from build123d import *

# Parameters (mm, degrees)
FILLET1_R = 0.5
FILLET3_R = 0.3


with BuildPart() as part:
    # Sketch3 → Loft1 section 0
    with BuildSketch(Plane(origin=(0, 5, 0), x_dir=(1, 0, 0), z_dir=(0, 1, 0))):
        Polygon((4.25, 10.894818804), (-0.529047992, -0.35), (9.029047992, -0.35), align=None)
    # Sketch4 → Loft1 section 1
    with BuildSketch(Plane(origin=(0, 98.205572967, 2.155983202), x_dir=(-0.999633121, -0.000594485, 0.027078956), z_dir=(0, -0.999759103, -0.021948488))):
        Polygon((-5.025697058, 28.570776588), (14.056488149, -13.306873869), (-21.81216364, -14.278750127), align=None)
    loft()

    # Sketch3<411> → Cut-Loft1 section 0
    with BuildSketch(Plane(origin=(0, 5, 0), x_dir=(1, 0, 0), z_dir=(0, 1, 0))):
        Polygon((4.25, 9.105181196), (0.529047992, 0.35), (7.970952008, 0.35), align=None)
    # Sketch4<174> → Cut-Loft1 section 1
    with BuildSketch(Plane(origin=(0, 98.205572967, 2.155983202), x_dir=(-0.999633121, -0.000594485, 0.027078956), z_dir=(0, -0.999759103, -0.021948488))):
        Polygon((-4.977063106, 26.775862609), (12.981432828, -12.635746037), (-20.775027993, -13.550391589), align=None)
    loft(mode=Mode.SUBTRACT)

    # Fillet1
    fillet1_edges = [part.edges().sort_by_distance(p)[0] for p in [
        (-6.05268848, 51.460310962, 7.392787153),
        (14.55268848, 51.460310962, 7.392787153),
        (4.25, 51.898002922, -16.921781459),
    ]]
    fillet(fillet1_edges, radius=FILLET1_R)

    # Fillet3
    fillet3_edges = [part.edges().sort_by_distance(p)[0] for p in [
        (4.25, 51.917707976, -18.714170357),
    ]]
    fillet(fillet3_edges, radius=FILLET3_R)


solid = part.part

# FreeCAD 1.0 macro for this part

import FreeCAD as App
import Part
import Sketcher
from FreeCAD import Vector
Q = App.Units.Quantity


def edges_at(feature, points):
    """Names of the edges that pass closest to the given points."""
    edges = feature.Shape.Edges
    near = lambda p: min(range(len(edges)), key=lambda i: edges[i].distToShape(Part.Vertex(*p))[0])
    return sorted({f"Edge{near(p) + 1}" for p in points})

doc = App.newDocument("Part")
body = doc.addObject("PartDesign::Body", "Body")

# Sketch on XZ plane
sketch1 = body.newObject("Sketcher::SketchObject", "Sketch")
sketch1.AttachmentSupport = (doc.getObject("XZ_Plane"), [""])
sketch1.MapMode = "FlatFace"
sketch1.AttachmentOffset = App.Placement(Vector(0, 0, -5), App.Rotation())
sketch1.addGeometry([
    Part.LineSegment(Vector(4, -11, 0), Vector(-1, 0, 0)),
    Part.LineSegment(Vector(-1, 0, 0), Vector(9, 0, 0)),
    Part.LineSegment(Vector(9, 0, 0), Vector(4, -11, 0)),
], False)
sketch1.addConstraint([
    Sketcher.Constraint("Coincident", 0, 2, 1, 1),
    Sketcher.Constraint("Coincident", 1, 2, 2, 1),
    Sketcher.Constraint("Coincident", 2, 2, 0, 1),
    Sketcher.Constraint("Horizontal", 1),
    Sketcher.Constraint("Equal", 0, 2),
    Sketcher.Constraint("DistanceY", -1, 1, 0, 2, Q("0.35 mm")),
    Sketcher.Constraint("DistanceX", -1, 1, 2, 2, Q("4.25 mm")),
    Sketcher.Constraint("DistanceX", 1, 1, 1, 2, Q("9.558096 mm")),
    Sketcher.Constraint("DistanceY", 2, 2, -1, 1, Q("10.894819 mm")),
])

# Sketch on an angled plane
sketch2 = body.newObject("Sketcher::SketchObject", "Sketch001")
sketch2.Placement = App.Placement(Vector(0, 98.205573, 2.155983), App.Rotation(Vector(-0.999633121, -0.000594485, 0.027078956), Vector(-0.027085481, 0.021940436, -0.999392312), Vector(0, -0.999759103, -0.021948488), "ZXY"))
sketch2.addGeometry([
    Part.LineSegment(Vector(14, -13, 0), Vector(-5, 29, 0)),
    Part.LineSegment(Vector(-5, 29, 0), Vector(-22, -14, 0)),
    Part.LineSegment(Vector(-22, -14, 0), Vector(14, -13, 0)),
], False)
sketch2.addConstraint([
    Sketcher.Constraint("Coincident", 0, 2, 1, 1),
    Sketcher.Constraint("Coincident", 1, 2, 2, 1),
    Sketcher.Constraint("Coincident", 2, 2, 0, 1),
    Sketcher.Constraint("Equal", 0, 1),
    Sketcher.Constraint("DistanceY", 1, 2, -1, 1, Q("14.27875 mm")),
    Sketcher.Constraint("DistanceX", -1, 1, 2, 2, Q("14.056488 mm")),
    Sketcher.Constraint("DistanceX", 1, 2, 2, 2, Q("35.868652 mm")),
    Sketcher.Constraint("DistanceY", 2, 2, 0, 2, Q("41.87765 mm")),
    Sketcher.Constraint("Distance", 0, Q("46.020293 mm")),
])

additiveloft = body.newObject("PartDesign::AdditiveLoft", "AdditiveLoft")
additiveloft.Profile = sketch1
additiveloft.Sections = [sketch2]

# Sketch on XZ plane
sketch3 = body.newObject("Sketcher::SketchObject", "Sketch002")
sketch3.AttachmentSupport = (doc.getObject("XZ_Plane"), [""])
sketch3.MapMode = "FlatFace"
sketch3.AttachmentOffset = App.Placement(Vector(0, 0, -5), App.Rotation())
sketch3.addGeometry([
    Part.LineSegment(Vector(4, -9, 0), Vector(1, 0, 0)),
    Part.LineSegment(Vector(1, 0, 0), Vector(8, 0, 0)),
    Part.LineSegment(Vector(8, 0, 0), Vector(4, -9, 0)),
], False)
sketch3.addConstraint([
    Sketcher.Constraint("Coincident", 0, 2, 1, 1),
    Sketcher.Constraint("Coincident", 1, 2, 2, 1),
    Sketcher.Constraint("Coincident", 2, 2, 0, 1),
    Sketcher.Constraint("Horizontal", 1),
    Sketcher.Constraint("Equal", 0, 2),
    Sketcher.Constraint("DistanceY", 0, 2, -1, 1, Q("0.35 mm")),
    Sketcher.Constraint("DistanceX", -1, 1, 2, 2, Q("4.25 mm")),
    Sketcher.Constraint("Distance", 0, Q("9.51308 mm")),
    Sketcher.Constraint("DistanceX", 1, 1, 1, 2, Q("7.441904 mm")),
])

# Sketch on an angled plane
sketch4 = body.newObject("Sketcher::SketchObject", "Sketch003")
sketch4.Placement = App.Placement(Vector(0, 98.205573, 2.155983), App.Rotation(Vector(-0.999633121, -0.000594485, 0.027078956), Vector(-0.027085481, 0.021940436, -0.999392312), Vector(0, -0.999759103, -0.021948488), "ZXY"))
sketch4.addGeometry([
    Part.LineSegment(Vector(13, -13, 0), Vector(-5, 27, 0)),
    Part.LineSegment(Vector(-5, 27, 0), Vector(-21, -14, 0)),
    Part.LineSegment(Vector(-21, -14, 0), Vector(13, -13, 0)),
], False)
sketch4.addConstraint([
    Sketcher.Constraint("Coincident", 0, 2, 1, 1),
    Sketcher.Constraint("Coincident", 1, 2, 2, 1),
    Sketcher.Constraint("Coincident", 2, 2, 0, 1),
    Sketcher.Constraint("Equal", 0, 1),
    Sketcher.Constraint("Distance", 2, Q("33.76885 mm")),
    Sketcher.Constraint("DistanceY", 1, 2, -1, 1, Q("13.550392 mm")),
    Sketcher.Constraint("DistanceX", 1, 2, 2, 2, Q("33.756461 mm")),
    Sketcher.Constraint("DistanceY", 2, 2, 0, 2, Q("39.411609 mm")),
    Sketcher.Constraint("DistanceX", 0, 2, -1, 1, Q("4.977063 mm")),
])

subtractiveloft = body.newObject("PartDesign::SubtractiveLoft", "SubtractiveLoft")
subtractiveloft.Profile = sketch3
subtractiveloft.Sections = [sketch4]
doc.recompute()

fillet = body.newObject("PartDesign::Fillet", "Fillet")
fillet.Base = (subtractiveloft, edges_at(subtractiveloft, [(-6.053, 51.46, 7.393), (14.553, 51.46, 7.393), (4.25, 51.898, -16.922)]))
fillet.Radius = 0.5
doc.recompute()

fillet2 = body.newObject("PartDesign::Fillet", "Fillet001")
fillet2.Base = (fillet, edges_at(fillet, [(4.25, 51.918, -18.714)]))
fillet2.Radius = 0.3

doc.recompute()
